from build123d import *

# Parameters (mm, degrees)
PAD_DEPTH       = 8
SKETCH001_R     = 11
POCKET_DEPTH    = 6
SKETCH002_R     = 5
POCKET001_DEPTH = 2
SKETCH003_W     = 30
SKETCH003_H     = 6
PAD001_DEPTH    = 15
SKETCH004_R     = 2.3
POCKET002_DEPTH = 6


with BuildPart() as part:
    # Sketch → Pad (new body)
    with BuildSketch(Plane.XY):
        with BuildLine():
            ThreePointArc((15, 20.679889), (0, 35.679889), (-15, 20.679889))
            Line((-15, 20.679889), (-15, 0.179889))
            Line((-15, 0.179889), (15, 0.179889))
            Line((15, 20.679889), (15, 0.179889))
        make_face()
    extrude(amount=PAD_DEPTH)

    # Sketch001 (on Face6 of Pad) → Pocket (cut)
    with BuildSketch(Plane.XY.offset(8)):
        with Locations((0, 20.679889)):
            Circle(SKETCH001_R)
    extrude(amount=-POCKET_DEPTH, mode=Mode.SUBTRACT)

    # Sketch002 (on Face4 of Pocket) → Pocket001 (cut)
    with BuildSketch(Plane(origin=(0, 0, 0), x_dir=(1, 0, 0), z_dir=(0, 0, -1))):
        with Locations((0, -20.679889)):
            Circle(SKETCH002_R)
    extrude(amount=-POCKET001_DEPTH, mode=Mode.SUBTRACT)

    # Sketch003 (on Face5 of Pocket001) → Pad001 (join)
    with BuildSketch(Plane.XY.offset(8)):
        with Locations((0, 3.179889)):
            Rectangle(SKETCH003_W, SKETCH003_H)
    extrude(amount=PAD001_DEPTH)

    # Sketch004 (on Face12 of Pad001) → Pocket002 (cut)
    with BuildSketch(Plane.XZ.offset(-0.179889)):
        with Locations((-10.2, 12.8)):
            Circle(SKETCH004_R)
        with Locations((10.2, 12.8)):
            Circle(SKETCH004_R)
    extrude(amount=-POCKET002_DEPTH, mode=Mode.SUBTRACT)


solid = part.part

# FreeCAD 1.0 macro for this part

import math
import FreeCAD as App
import Part
import Sketcher
from FreeCAD import Vector

doc = App.newDocument("Part")
params = doc.addObject("Spreadsheet::Sheet", "Params")
for row, (alias, value) in enumerate([
    ("sketch1_radius", "15 mm"),
    ("sketch1_height", "20.5 mm"),
    ("pad1_length", "8 mm"),
    ("sketch2_diameter", "22 mm"),
    ("pocket1_length", "6 mm"),
    ("sketch3_diameter", "10 mm"),
    ("pocket2_length", "2 mm"),
    ("sketch4_width", "30 mm"),
    ("sketch4_height", "6 mm"),
    ("pad2_length", "15 mm"),
    ("sketch5_diameter", "4.6 mm"),
    ("pocket3_length", "6 mm"),
], start=1):
    params.set(f"A{row}", alias)
    params.set(f"B{row}", "=" + value)
    params.setAlias(f"B{row}", alias)

body = doc.addObject("PartDesign::Body", "Body")

# Sketch on XY plane
sketch1 = body.newObject("Sketcher::SketchObject", "Sketch")
sketch1.AttachmentSupport = (doc.getObject("XY_Plane"), [""])
sketch1.MapMode = "FlatFace"
sketch1.addGeometry([
    Part.ArcOfCircle(Part.Circle(Vector(0, 21, 0), Vector(0, 0, 1), 15), math.radians(0), math.radians(180)),
    Part.LineSegment(Vector(-15, 21, 0), Vector(-15, 0, 0)),
    Part.LineSegment(Vector(-15, 0, 0), Vector(15, 0, 0)),
    Part.LineSegment(Vector(15, 0, 0), Vector(15, 21, 0)),
], False)
sketch1.addConstraint([
    Sketcher.Constraint("Tangent", 0, 2, 1, 1),
    Sketcher.Constraint("Coincident", 1, 2, 2, 1),
    Sketcher.Constraint("Coincident", 2, 2, 3, 1),
    Sketcher.Constraint("Tangent", 3, 2, 0, 1),
    Sketcher.Constraint("Vertical", 1),
    Sketcher.Constraint("Horizontal", 2),
    Sketcher.Constraint("Vertical", 3),
    Sketcher.Constraint("PointOnObject", 0, 3, -2),
    Sketcher.Constraint("Radius", 0, 15.0),
    Sketcher.Constraint("DistanceY", 1, 2, 1, 1, 20.5),
    Sketcher.Constraint("DistanceY", -1, 1, 0, 3, 20.679889),
])
sketch1.setExpression("Constraints[8]", "Params.sketch1_radius")
sketch1.setExpression("Constraints[9]", "Params.sketch1_height")
pad1 = body.newObject("PartDesign::Pad", "Pad")
pad1.Profile = sketch1
pad1.setExpression("Length", "Params.pad1_length")

# Sketch on XY plane
sketch2 = body.newObject("Sketcher::SketchObject", "Sketch001")
sketch2.AttachmentSupport = (doc.getObject("XY_Plane"), [""])
sketch2.MapMode = "FlatFace"
sketch2.AttachmentOffset = App.Placement(Vector(0, 0, 8), App.Rotation())
sketch2.addGeometry(Part.Circle(Vector(0, 21, 0), Vector(0, 0, 1), 11), False)
sketch2.addConstraint([
    Sketcher.Constraint("PointOnObject", 0, 3, -2),
    Sketcher.Constraint("Diameter", 0, 22.0),
    Sketcher.Constraint("DistanceY", -1, 1, 0, 3, 20.679889),
])
sketch2.setExpression("Constraints[1]", "Params.sketch2_diameter")
pocket1 = body.newObject("PartDesign::Pocket", "Pocket")
pocket1.Profile = sketch2
pocket1.setExpression("Length", "Params.pocket1_length")

# Sketch on XY plane
sketch3 = body.newObject("Sketcher::SketchObject", "Sketch002")
sketch3.AttachmentSupport = (doc.getObject("XY_Plane"), [""])
sketch3.MapMode = "FlatFace"
sketch3.addGeometry(Part.Circle(Vector(0, 21, 0), Vector(0, 0, 1), 5), False)
sketch3.addConstraint([
    Sketcher.Constraint("PointOnObject", 0, 3, -2),
    Sketcher.Constraint("Diameter", 0, 10.0),
    Sketcher.Constraint("DistanceY", -1, 1, 0, 3, 20.679889),
])
sketch3.setExpression("Constraints[1]", "Params.sketch3_diameter")
pocket2 = body.newObject("PartDesign::Pocket", "Pocket001")
pocket2.Profile = sketch3
pocket2.setExpression("Length", "Params.pocket2_length")
pocket2.Reversed = True

# Sketch on XY plane
sketch4 = body.newObject("Sketcher::SketchObject", "Sketch003")
sketch4.AttachmentSupport = (doc.getObject("XY_Plane"), [""])
sketch4.MapMode = "FlatFace"
sketch4.AttachmentOffset = App.Placement(Vector(0, 0, 8), App.Rotation())
sketch4.addGeometry([
    Part.LineSegment(Vector(-15, 6, 0), Vector(-15, 0, 0)),
    Part.LineSegment(Vector(-15, 0, 0), Vector(15, 0, 0)),
    Part.LineSegment(Vector(15, 0, 0), Vector(15, 6, 0)),
    Part.LineSegment(Vector(15, 6, 0), Vector(-15, 6, 0)),
], False)
sketch4.addConstraint([
    Sketcher.Constraint("Coincident", 0, 2, 1, 1),
    Sketcher.Constraint("Coincident", 1, 2, 2, 1),
    Sketcher.Constraint("Coincident", 2, 2, 3, 1),
    Sketcher.Constraint("Coincident", 3, 2, 0, 1),
    Sketcher.Constraint("Vertical", 0),
    Sketcher.Constraint("Horizontal", 1),
    Sketcher.Constraint("Vertical", 2),
    Sketcher.Constraint("Horizontal", 3),
    Sketcher.Constraint("DistanceX", 1, 1, 1, 2, 30.0),
    Sketcher.Constraint("DistanceY", 0, 2, 0, 1, 6.0),
    Sketcher.Constraint("DistanceX", 0, 2, -1, 1, 15.0),
    Sketcher.Constraint("DistanceY", -1, 1, 0, 2, 0.179889),
])
sketch4.setExpression("Constraints[8]", "Params.sketch4_width")
sketch4.setExpression("Constraints[9]", "Params.sketch4_height")
pad2 = body.newObject("PartDesign::Pad", "Pad001")
pad2.Profile = sketch4
pad2.setExpression("Length", "Params.pad2_length")

# Sketch on XZ plane
sketch5 = body.newObject("Sketcher::SketchObject", "Sketch004")
sketch5.AttachmentSupport = (doc.getObject("XZ_Plane"), [""])
sketch5.MapMode = "FlatFace"
sketch5.AttachmentOffset = App.Placement(Vector(0, 0, -0.179889), App.Rotation())
sketch5.addGeometry([
    Part.Circle(Vector(-10.2, 12.8, 0), Vector(0, 0, 1), 2.3),
    Part.Circle(Vector(10.2, 12.8, 0), Vector(0, 0, 1), 2.3),
], False)
sketch5.addConstraint([
    Sketcher.Constraint("Equal", 0, 1),
    Sketcher.Constraint("Symmetric", 0, 3, 1, 3, -2),
    Sketcher.Constraint("Diameter", 0, 4.6),
    Sketcher.Constraint("DistanceX", 0, 3, -1, 1, 10.2),
    Sketcher.Constraint("DistanceY", -1, 1, 0, 3, 12.8),
])
sketch5.setExpression("Constraints[2]", "Params.sketch5_diameter")
pocket3 = body.newObject("PartDesign::Pocket", "Pocket002")
pocket3.Profile = sketch5
pocket3.setExpression("Length", "Params.pocket3_length")

doc.recompute()
